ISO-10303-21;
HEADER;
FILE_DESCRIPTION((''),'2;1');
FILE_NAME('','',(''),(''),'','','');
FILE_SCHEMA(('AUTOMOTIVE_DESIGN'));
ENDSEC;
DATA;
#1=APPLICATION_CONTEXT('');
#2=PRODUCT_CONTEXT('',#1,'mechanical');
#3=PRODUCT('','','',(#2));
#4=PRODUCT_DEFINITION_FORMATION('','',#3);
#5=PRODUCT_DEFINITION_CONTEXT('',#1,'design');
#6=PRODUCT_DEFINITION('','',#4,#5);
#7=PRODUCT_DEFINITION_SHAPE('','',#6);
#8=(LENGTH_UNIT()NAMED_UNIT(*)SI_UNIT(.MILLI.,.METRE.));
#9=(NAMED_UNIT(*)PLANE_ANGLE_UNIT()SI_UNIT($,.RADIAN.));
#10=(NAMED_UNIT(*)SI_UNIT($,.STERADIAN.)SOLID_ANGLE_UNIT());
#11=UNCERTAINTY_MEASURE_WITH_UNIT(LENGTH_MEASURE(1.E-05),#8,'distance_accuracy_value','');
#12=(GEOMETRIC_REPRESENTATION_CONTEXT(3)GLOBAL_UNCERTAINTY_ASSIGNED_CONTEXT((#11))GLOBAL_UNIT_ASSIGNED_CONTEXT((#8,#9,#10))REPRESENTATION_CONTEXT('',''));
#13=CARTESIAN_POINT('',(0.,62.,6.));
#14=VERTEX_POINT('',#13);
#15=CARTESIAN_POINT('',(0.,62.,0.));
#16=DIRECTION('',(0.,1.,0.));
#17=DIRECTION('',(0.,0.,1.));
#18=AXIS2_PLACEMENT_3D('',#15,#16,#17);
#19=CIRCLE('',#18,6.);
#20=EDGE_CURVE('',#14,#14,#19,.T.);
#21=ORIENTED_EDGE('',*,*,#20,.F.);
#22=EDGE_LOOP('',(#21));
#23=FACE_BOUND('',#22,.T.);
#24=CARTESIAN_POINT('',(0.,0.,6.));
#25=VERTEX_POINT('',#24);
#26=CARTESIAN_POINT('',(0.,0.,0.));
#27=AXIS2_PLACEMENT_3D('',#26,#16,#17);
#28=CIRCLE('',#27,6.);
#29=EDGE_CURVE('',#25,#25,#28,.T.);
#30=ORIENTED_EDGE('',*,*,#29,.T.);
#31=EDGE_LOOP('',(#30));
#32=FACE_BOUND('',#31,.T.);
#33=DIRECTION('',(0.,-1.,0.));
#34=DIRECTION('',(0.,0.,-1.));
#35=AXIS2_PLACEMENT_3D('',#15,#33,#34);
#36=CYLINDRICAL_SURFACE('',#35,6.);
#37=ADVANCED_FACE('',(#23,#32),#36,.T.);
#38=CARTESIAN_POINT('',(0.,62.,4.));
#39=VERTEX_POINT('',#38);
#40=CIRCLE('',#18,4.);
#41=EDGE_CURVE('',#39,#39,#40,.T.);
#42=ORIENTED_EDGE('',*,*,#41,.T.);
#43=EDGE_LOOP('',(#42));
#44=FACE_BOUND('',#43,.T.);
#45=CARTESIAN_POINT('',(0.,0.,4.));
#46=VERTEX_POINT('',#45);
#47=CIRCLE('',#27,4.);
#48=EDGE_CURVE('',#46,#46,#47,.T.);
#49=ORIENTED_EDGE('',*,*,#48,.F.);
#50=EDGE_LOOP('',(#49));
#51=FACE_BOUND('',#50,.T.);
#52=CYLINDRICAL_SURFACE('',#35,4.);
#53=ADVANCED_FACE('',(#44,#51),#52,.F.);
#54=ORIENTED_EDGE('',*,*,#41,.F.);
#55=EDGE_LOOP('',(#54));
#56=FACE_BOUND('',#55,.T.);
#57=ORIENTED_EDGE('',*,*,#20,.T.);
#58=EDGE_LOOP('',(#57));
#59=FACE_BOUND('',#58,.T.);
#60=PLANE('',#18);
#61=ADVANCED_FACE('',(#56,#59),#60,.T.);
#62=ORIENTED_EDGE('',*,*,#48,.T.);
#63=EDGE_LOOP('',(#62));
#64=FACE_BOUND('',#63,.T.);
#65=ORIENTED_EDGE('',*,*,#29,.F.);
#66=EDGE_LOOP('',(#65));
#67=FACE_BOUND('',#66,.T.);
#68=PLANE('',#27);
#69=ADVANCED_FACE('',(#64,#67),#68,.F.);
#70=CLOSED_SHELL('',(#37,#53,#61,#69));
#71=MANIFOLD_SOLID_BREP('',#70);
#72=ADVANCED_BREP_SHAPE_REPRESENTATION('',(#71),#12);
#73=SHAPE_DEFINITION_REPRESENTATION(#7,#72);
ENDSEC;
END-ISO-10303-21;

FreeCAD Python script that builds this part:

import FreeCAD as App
import Part
import Sketcher

V = App.Vector

doc = App.newDocument("Part")
body = doc.addObject("PartDesign::Body", "Body")

# Sketch on XZ plane
sketch1 = doc.addObject("Sketcher::SketchObject", "Sketch")
body.addObject(sketch1)
sketch1.AttachmentSupport = (doc.XZ_Plane, [""])
sketch1.MapMode = "FlatFace"
sketch1.addGeometry([
    Part.Circle(V(0, 0, 0), V(0, 0, 1), 6),
    Part.Circle(V(0, 0, 0), V(0, 0, 1), 4),
], False)
sketch1.addConstraint([
    Sketcher.Constraint("Coincident", 0, 3, -1, 1),
    Sketcher.Constraint("Coincident", 1, 3, -1, 1),
    Sketcher.Constraint("Diameter", 0, 12.0),
    Sketcher.Constraint("Diameter", 1, 8.0),
])
pad1 = doc.addObject("PartDesign::Pad", "Pad")
body.addObject(pad1)
pad1.Profile = sketch1
pad1.Length = 62
pad1.Reversed = True

doc.recompute()
